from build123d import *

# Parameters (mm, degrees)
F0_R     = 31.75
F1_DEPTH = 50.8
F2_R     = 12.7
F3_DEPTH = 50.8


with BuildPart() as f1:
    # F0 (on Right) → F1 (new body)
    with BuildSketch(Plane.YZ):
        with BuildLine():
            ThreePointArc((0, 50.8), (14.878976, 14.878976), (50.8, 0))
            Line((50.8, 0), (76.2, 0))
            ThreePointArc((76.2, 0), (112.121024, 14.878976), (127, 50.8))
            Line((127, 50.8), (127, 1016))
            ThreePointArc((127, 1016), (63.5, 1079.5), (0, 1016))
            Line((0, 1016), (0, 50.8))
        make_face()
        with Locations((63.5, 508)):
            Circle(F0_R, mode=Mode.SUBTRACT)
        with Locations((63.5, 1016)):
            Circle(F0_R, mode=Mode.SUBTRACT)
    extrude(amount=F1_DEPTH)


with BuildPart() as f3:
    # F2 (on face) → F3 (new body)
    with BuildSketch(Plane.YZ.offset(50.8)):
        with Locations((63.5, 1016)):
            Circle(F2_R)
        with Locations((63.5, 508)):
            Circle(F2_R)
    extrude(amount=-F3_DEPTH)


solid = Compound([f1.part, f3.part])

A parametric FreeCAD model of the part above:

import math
import FreeCAD as App
import Part
import Sketcher
from FreeCAD import Vector
Q = App.Units.Quantity

doc = App.newDocument("Part")
body = doc.addObject("PartDesign::Body", "Body")

# Sketch on YZ plane
sketch1 = body.newObject("Sketcher::SketchObject", "Sketch")
sketch1.AttachmentSupport = (doc.getObject("YZ_Plane"), [""])
sketch1.MapMode = "FlatFace"
sketch1.addGeometry([
    Part.ArcOfCircle(Part.Circle(Vector(51, 51, 0), Vector(0, 0, 1), 51), math.radians(-180), math.radians(-90)),  # 0
    Part.LineSegment(Vector(51, 0, 0), Vector(76, 0, 0)),  # 1
    Part.ArcOfCircle(Part.Circle(Vector(76, 51, 0), Vector(0, 0, 1), 51), math.radians(-90), math.radians(0)),  # 2
    Part.LineSegment(Vector(127, 51, 0), Vector(127, 1016, 0)),  # 3
    Part.ArcOfCircle(Part.Circle(Vector(64, 1016, 0), Vector(0, 0, 1), 64), math.radians(0), math.radians(180)),  # 4
    Part.LineSegment(Vector(0, 1016, 0), Vector(0, 51, 0)),  # 5
    Part.Circle(Vector(64, 508, 0), Vector(0, 0, 1), 32),  # 6
    Part.Circle(Vector(64, 1016, 0), Vector(0, 0, 1), 32),  # 7
], False)
sketch1.addConstraint([
    Sketcher.Constraint("Tangent", 0, 2, 1, 1),
    Sketcher.Constraint("Tangent", 1, 2, 2, 1),
    Sketcher.Constraint("Tangent", 2, 2, 3, 1),
    Sketcher.Constraint("Tangent", 3, 2, 4, 1),
    Sketcher.Constraint("Tangent", 4, 2, 5, 1),
    Sketcher.Constraint("Tangent", 5, 2, 0, 1),
    Sketcher.Constraint("Horizontal", 1),
    Sketcher.Constraint("Vertical", 3),
    Sketcher.Constraint("Vertical", 5),
    Sketcher.Constraint("Coincident", 7, 3, 4, 3),
    Sketcher.Constraint("Equal", 0, 2),
    Sketcher.Constraint("Equal", 6, 7),
    Sketcher.Constraint("PointOnObject", 0, 2, -1),
    Sketcher.Constraint("PointOnObject", 4, 2, -2),
    Sketcher.Constraint("Vertical", 4, 3, 6, 3),
    Sketcher.Constraint("Radius", 0, Q("2.0000001 in")),
    Sketcher.Constraint("Diameter", 6, Q("2.5 in")),
    Sketcher.Constraint("Radius", 4, Q("2.5 in")),
    Sketcher.Constraint("DistanceY", 3, 1, 3, 2, Q("38 in")),
    Sketcher.Constraint("DistanceY", -1, 1, 6, 3, Q("20 in")),
])
pad1 = body.newObject("PartDesign::Pad", "Pad")
pad1.Profile = sketch1
pad1.Length = Q("2 in")
body2 = doc.addObject("PartDesign::Body", "Body001")
body2.AllowCompound = True

# Sketch on YZ plane
sketch2 = body2.newObject("Sketcher::SketchObject", "Sketch001")
sketch2.AttachmentSupport = (doc.getObject("YZ_Plane001"), [""])
sketch2.MapMode = "FlatFace"
sketch2.AttachmentOffset = App.Placement(Vector(0, 0, 2 * 25.4), App.Rotation())
sketch2.addGeometry([
    Part.Circle(Vector(64, 1016, 0), Vector(0, 0, 1), 13),
    Part.Circle(Vector(64, 508, 0), Vector(0, 0, 1), 13),
], False)
sketch2.addConstraint([
    Sketcher.Constraint("Equal", 0, 1),
    Sketcher.Constraint("Vertical", 0, 3, 1, 3),
    Sketcher.Constraint("Diameter", 0, Q("1 in")),
    Sketcher.Constraint("DistanceY", -1, 1, 0, 3, Q("40 in")),
    Sketcher.Constraint("DistanceY", -1, 1, 1, 3, Q("20 in")),
    Sketcher.Constraint("DistanceX", -1, 1, 0, 3, Q("2.5 in")),
])
pad2 = body2.newObject("PartDesign::Pad", "Pad001")
pad2.Profile = sketch2
pad2.Length = Q("2 in")
pad2.Reversed = True

doc.recompute()
